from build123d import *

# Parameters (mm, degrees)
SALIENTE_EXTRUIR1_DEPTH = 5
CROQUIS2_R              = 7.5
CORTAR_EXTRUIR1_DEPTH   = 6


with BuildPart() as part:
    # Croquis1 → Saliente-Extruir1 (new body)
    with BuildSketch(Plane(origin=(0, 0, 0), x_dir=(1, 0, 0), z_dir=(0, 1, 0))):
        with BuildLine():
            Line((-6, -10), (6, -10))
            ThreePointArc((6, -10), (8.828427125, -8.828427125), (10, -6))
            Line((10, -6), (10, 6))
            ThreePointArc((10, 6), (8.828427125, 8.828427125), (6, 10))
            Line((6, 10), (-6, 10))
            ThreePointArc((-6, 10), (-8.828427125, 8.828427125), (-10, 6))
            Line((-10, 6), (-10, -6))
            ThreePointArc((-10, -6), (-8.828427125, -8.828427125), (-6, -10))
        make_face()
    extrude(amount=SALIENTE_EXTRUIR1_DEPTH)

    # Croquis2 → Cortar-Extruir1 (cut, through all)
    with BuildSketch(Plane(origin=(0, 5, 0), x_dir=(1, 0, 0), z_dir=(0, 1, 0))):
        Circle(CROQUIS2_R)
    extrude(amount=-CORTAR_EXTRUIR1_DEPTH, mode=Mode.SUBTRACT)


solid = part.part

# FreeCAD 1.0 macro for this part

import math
import FreeCAD as App
import Part
import Sketcher
from FreeCAD import Vector

doc = App.newDocument("Part")
params = doc.addObject("Spreadsheet::Sheet", "Params")
for row, (alias, value) in enumerate([
    ("sketch1_radius", "4 mm"),
    ("sketch1_width", "12 mm"),
    ("pad1_length", "5 mm"),
    ("sketch2_diameter", "15 mm"),
], start=1):
    params.set(f"A{row}", alias)
    params.set(f"B{row}", "=" + value)
    params.setAlias(f"B{row}", alias)

body = doc.addObject("PartDesign::Body", "Body")

sketch1 = doc.addObject("Sketcher::SketchObject", "Sketch")
body.addObject(sketch1)
sketch1.AttachmentSupport = (doc.XZ_Plane, [""])
sketch1.MapMode = "FlatFace"
sketch1.addGeometry([
    Part.LineSegment(Vector(-6, 10, 0), Vector(6, 10, 0)),
    Part.ArcOfCircle(Part.Circle(Vector(6, 6, 0), Vector(0, 0, 1), 4), math.radians(0), math.radians(90)),
    Part.LineSegment(Vector(10, 6, 0), Vector(10, -6, 0)),
    Part.ArcOfCircle(Part.Circle(Vector(6, -6, 0), Vector(0, 0, 1), 4), math.radians(-90), math.radians(0)),
    Part.LineSegment(Vector(6, -10, 0), Vector(-6, -10, 0)),
    Part.ArcOfCircle(Part.Circle(Vector(-6, -6, 0), Vector(0, 0, 1), 4), math.radians(180), math.radians(270)),
    Part.LineSegment(Vector(-10, -6, 0), Vector(-10, 6, 0)),
    Part.ArcOfCircle(Part.Circle(Vector(-6, 6, 0), Vector(0, 0, 1), 4), math.radians(90), math.radians(180)),
], False)
sketch1.addConstraint([
    Sketcher.Constraint("Tangent", 0, 2, 1, 2),
    Sketcher.Constraint("Tangent", 1, 1, 2, 1),
    Sketcher.Constraint("Tangent", 2, 2, 3, 2),
    Sketcher.Constraint("Tangent", 3, 1, 4, 1),
    Sketcher.Constraint("Tangent", 4, 2, 5, 2),
    Sketcher.Constraint("Tangent", 5, 1, 6, 1),
    Sketcher.Constraint("Tangent", 6, 2, 7, 2),
    Sketcher.Constraint("Tangent", 7, 1, 0, 1),
    Sketcher.Constraint("Horizontal", 0),
    Sketcher.Constraint("Vertical", 2),
    Sketcher.Constraint("Horizontal", 4),
    Sketcher.Constraint("Vertical", 6),
    Sketcher.Constraint("Equal", 1, 3),
    Sketcher.Constraint("Equal", 3, 5),
    Sketcher.Constraint("Equal", 5, 7),
    Sketcher.Constraint("Symmetric", 1, 3, 5, 3, -1, 1),
    Sketcher.Constraint("Equal", 4, 2),
    Sketcher.Constraint("Radius", 1, 4.0),
    Sketcher.Constraint("DistanceX", 0, 1, 0, 2, 12.0),
])
sketch1.setExpression("Constraints[17]", "Params.sketch1_radius")
sketch1.setExpression("Constraints[18]", "Params.sketch1_width")
pad1 = doc.addObject("PartDesign::Pad", "Pad")
body.addObject(pad1)
pad1.Profile = sketch1
pad1.setExpression("Length", "Params.pad1_length")
pad1.Reversed = True

sketch2 = doc.addObject("Sketcher::SketchObject", "Sketch001")
body.addObject(sketch2)
sketch2.AttachmentSupport = (doc.XZ_Plane, [""])
sketch2.MapMode = "FlatFace"
sketch2.AttachmentOffset = App.Placement(Vector(0, 0, -5), App.Rotation())
sketch2.addGeometry(Part.Circle(Vector(0, 0, 0), Vector(0, 0, 1), 7.5), False)
sketch2.addConstraint([
    Sketcher.Constraint("Coincident", 0, 3, -1, 1),
    Sketcher.Constraint("Diameter", 0, 15.0),
])
sketch2.setExpression("Constraints[1]", "Params.sketch2_diameter")
pocket1 = doc.addObject("PartDesign::Pocket", "Pocket")
body.addObject(pocket1)
pocket1.Profile = sketch2
pocket1.Type = "ThroughAll"
pocket1.Reversed = True

doc.recompute()
